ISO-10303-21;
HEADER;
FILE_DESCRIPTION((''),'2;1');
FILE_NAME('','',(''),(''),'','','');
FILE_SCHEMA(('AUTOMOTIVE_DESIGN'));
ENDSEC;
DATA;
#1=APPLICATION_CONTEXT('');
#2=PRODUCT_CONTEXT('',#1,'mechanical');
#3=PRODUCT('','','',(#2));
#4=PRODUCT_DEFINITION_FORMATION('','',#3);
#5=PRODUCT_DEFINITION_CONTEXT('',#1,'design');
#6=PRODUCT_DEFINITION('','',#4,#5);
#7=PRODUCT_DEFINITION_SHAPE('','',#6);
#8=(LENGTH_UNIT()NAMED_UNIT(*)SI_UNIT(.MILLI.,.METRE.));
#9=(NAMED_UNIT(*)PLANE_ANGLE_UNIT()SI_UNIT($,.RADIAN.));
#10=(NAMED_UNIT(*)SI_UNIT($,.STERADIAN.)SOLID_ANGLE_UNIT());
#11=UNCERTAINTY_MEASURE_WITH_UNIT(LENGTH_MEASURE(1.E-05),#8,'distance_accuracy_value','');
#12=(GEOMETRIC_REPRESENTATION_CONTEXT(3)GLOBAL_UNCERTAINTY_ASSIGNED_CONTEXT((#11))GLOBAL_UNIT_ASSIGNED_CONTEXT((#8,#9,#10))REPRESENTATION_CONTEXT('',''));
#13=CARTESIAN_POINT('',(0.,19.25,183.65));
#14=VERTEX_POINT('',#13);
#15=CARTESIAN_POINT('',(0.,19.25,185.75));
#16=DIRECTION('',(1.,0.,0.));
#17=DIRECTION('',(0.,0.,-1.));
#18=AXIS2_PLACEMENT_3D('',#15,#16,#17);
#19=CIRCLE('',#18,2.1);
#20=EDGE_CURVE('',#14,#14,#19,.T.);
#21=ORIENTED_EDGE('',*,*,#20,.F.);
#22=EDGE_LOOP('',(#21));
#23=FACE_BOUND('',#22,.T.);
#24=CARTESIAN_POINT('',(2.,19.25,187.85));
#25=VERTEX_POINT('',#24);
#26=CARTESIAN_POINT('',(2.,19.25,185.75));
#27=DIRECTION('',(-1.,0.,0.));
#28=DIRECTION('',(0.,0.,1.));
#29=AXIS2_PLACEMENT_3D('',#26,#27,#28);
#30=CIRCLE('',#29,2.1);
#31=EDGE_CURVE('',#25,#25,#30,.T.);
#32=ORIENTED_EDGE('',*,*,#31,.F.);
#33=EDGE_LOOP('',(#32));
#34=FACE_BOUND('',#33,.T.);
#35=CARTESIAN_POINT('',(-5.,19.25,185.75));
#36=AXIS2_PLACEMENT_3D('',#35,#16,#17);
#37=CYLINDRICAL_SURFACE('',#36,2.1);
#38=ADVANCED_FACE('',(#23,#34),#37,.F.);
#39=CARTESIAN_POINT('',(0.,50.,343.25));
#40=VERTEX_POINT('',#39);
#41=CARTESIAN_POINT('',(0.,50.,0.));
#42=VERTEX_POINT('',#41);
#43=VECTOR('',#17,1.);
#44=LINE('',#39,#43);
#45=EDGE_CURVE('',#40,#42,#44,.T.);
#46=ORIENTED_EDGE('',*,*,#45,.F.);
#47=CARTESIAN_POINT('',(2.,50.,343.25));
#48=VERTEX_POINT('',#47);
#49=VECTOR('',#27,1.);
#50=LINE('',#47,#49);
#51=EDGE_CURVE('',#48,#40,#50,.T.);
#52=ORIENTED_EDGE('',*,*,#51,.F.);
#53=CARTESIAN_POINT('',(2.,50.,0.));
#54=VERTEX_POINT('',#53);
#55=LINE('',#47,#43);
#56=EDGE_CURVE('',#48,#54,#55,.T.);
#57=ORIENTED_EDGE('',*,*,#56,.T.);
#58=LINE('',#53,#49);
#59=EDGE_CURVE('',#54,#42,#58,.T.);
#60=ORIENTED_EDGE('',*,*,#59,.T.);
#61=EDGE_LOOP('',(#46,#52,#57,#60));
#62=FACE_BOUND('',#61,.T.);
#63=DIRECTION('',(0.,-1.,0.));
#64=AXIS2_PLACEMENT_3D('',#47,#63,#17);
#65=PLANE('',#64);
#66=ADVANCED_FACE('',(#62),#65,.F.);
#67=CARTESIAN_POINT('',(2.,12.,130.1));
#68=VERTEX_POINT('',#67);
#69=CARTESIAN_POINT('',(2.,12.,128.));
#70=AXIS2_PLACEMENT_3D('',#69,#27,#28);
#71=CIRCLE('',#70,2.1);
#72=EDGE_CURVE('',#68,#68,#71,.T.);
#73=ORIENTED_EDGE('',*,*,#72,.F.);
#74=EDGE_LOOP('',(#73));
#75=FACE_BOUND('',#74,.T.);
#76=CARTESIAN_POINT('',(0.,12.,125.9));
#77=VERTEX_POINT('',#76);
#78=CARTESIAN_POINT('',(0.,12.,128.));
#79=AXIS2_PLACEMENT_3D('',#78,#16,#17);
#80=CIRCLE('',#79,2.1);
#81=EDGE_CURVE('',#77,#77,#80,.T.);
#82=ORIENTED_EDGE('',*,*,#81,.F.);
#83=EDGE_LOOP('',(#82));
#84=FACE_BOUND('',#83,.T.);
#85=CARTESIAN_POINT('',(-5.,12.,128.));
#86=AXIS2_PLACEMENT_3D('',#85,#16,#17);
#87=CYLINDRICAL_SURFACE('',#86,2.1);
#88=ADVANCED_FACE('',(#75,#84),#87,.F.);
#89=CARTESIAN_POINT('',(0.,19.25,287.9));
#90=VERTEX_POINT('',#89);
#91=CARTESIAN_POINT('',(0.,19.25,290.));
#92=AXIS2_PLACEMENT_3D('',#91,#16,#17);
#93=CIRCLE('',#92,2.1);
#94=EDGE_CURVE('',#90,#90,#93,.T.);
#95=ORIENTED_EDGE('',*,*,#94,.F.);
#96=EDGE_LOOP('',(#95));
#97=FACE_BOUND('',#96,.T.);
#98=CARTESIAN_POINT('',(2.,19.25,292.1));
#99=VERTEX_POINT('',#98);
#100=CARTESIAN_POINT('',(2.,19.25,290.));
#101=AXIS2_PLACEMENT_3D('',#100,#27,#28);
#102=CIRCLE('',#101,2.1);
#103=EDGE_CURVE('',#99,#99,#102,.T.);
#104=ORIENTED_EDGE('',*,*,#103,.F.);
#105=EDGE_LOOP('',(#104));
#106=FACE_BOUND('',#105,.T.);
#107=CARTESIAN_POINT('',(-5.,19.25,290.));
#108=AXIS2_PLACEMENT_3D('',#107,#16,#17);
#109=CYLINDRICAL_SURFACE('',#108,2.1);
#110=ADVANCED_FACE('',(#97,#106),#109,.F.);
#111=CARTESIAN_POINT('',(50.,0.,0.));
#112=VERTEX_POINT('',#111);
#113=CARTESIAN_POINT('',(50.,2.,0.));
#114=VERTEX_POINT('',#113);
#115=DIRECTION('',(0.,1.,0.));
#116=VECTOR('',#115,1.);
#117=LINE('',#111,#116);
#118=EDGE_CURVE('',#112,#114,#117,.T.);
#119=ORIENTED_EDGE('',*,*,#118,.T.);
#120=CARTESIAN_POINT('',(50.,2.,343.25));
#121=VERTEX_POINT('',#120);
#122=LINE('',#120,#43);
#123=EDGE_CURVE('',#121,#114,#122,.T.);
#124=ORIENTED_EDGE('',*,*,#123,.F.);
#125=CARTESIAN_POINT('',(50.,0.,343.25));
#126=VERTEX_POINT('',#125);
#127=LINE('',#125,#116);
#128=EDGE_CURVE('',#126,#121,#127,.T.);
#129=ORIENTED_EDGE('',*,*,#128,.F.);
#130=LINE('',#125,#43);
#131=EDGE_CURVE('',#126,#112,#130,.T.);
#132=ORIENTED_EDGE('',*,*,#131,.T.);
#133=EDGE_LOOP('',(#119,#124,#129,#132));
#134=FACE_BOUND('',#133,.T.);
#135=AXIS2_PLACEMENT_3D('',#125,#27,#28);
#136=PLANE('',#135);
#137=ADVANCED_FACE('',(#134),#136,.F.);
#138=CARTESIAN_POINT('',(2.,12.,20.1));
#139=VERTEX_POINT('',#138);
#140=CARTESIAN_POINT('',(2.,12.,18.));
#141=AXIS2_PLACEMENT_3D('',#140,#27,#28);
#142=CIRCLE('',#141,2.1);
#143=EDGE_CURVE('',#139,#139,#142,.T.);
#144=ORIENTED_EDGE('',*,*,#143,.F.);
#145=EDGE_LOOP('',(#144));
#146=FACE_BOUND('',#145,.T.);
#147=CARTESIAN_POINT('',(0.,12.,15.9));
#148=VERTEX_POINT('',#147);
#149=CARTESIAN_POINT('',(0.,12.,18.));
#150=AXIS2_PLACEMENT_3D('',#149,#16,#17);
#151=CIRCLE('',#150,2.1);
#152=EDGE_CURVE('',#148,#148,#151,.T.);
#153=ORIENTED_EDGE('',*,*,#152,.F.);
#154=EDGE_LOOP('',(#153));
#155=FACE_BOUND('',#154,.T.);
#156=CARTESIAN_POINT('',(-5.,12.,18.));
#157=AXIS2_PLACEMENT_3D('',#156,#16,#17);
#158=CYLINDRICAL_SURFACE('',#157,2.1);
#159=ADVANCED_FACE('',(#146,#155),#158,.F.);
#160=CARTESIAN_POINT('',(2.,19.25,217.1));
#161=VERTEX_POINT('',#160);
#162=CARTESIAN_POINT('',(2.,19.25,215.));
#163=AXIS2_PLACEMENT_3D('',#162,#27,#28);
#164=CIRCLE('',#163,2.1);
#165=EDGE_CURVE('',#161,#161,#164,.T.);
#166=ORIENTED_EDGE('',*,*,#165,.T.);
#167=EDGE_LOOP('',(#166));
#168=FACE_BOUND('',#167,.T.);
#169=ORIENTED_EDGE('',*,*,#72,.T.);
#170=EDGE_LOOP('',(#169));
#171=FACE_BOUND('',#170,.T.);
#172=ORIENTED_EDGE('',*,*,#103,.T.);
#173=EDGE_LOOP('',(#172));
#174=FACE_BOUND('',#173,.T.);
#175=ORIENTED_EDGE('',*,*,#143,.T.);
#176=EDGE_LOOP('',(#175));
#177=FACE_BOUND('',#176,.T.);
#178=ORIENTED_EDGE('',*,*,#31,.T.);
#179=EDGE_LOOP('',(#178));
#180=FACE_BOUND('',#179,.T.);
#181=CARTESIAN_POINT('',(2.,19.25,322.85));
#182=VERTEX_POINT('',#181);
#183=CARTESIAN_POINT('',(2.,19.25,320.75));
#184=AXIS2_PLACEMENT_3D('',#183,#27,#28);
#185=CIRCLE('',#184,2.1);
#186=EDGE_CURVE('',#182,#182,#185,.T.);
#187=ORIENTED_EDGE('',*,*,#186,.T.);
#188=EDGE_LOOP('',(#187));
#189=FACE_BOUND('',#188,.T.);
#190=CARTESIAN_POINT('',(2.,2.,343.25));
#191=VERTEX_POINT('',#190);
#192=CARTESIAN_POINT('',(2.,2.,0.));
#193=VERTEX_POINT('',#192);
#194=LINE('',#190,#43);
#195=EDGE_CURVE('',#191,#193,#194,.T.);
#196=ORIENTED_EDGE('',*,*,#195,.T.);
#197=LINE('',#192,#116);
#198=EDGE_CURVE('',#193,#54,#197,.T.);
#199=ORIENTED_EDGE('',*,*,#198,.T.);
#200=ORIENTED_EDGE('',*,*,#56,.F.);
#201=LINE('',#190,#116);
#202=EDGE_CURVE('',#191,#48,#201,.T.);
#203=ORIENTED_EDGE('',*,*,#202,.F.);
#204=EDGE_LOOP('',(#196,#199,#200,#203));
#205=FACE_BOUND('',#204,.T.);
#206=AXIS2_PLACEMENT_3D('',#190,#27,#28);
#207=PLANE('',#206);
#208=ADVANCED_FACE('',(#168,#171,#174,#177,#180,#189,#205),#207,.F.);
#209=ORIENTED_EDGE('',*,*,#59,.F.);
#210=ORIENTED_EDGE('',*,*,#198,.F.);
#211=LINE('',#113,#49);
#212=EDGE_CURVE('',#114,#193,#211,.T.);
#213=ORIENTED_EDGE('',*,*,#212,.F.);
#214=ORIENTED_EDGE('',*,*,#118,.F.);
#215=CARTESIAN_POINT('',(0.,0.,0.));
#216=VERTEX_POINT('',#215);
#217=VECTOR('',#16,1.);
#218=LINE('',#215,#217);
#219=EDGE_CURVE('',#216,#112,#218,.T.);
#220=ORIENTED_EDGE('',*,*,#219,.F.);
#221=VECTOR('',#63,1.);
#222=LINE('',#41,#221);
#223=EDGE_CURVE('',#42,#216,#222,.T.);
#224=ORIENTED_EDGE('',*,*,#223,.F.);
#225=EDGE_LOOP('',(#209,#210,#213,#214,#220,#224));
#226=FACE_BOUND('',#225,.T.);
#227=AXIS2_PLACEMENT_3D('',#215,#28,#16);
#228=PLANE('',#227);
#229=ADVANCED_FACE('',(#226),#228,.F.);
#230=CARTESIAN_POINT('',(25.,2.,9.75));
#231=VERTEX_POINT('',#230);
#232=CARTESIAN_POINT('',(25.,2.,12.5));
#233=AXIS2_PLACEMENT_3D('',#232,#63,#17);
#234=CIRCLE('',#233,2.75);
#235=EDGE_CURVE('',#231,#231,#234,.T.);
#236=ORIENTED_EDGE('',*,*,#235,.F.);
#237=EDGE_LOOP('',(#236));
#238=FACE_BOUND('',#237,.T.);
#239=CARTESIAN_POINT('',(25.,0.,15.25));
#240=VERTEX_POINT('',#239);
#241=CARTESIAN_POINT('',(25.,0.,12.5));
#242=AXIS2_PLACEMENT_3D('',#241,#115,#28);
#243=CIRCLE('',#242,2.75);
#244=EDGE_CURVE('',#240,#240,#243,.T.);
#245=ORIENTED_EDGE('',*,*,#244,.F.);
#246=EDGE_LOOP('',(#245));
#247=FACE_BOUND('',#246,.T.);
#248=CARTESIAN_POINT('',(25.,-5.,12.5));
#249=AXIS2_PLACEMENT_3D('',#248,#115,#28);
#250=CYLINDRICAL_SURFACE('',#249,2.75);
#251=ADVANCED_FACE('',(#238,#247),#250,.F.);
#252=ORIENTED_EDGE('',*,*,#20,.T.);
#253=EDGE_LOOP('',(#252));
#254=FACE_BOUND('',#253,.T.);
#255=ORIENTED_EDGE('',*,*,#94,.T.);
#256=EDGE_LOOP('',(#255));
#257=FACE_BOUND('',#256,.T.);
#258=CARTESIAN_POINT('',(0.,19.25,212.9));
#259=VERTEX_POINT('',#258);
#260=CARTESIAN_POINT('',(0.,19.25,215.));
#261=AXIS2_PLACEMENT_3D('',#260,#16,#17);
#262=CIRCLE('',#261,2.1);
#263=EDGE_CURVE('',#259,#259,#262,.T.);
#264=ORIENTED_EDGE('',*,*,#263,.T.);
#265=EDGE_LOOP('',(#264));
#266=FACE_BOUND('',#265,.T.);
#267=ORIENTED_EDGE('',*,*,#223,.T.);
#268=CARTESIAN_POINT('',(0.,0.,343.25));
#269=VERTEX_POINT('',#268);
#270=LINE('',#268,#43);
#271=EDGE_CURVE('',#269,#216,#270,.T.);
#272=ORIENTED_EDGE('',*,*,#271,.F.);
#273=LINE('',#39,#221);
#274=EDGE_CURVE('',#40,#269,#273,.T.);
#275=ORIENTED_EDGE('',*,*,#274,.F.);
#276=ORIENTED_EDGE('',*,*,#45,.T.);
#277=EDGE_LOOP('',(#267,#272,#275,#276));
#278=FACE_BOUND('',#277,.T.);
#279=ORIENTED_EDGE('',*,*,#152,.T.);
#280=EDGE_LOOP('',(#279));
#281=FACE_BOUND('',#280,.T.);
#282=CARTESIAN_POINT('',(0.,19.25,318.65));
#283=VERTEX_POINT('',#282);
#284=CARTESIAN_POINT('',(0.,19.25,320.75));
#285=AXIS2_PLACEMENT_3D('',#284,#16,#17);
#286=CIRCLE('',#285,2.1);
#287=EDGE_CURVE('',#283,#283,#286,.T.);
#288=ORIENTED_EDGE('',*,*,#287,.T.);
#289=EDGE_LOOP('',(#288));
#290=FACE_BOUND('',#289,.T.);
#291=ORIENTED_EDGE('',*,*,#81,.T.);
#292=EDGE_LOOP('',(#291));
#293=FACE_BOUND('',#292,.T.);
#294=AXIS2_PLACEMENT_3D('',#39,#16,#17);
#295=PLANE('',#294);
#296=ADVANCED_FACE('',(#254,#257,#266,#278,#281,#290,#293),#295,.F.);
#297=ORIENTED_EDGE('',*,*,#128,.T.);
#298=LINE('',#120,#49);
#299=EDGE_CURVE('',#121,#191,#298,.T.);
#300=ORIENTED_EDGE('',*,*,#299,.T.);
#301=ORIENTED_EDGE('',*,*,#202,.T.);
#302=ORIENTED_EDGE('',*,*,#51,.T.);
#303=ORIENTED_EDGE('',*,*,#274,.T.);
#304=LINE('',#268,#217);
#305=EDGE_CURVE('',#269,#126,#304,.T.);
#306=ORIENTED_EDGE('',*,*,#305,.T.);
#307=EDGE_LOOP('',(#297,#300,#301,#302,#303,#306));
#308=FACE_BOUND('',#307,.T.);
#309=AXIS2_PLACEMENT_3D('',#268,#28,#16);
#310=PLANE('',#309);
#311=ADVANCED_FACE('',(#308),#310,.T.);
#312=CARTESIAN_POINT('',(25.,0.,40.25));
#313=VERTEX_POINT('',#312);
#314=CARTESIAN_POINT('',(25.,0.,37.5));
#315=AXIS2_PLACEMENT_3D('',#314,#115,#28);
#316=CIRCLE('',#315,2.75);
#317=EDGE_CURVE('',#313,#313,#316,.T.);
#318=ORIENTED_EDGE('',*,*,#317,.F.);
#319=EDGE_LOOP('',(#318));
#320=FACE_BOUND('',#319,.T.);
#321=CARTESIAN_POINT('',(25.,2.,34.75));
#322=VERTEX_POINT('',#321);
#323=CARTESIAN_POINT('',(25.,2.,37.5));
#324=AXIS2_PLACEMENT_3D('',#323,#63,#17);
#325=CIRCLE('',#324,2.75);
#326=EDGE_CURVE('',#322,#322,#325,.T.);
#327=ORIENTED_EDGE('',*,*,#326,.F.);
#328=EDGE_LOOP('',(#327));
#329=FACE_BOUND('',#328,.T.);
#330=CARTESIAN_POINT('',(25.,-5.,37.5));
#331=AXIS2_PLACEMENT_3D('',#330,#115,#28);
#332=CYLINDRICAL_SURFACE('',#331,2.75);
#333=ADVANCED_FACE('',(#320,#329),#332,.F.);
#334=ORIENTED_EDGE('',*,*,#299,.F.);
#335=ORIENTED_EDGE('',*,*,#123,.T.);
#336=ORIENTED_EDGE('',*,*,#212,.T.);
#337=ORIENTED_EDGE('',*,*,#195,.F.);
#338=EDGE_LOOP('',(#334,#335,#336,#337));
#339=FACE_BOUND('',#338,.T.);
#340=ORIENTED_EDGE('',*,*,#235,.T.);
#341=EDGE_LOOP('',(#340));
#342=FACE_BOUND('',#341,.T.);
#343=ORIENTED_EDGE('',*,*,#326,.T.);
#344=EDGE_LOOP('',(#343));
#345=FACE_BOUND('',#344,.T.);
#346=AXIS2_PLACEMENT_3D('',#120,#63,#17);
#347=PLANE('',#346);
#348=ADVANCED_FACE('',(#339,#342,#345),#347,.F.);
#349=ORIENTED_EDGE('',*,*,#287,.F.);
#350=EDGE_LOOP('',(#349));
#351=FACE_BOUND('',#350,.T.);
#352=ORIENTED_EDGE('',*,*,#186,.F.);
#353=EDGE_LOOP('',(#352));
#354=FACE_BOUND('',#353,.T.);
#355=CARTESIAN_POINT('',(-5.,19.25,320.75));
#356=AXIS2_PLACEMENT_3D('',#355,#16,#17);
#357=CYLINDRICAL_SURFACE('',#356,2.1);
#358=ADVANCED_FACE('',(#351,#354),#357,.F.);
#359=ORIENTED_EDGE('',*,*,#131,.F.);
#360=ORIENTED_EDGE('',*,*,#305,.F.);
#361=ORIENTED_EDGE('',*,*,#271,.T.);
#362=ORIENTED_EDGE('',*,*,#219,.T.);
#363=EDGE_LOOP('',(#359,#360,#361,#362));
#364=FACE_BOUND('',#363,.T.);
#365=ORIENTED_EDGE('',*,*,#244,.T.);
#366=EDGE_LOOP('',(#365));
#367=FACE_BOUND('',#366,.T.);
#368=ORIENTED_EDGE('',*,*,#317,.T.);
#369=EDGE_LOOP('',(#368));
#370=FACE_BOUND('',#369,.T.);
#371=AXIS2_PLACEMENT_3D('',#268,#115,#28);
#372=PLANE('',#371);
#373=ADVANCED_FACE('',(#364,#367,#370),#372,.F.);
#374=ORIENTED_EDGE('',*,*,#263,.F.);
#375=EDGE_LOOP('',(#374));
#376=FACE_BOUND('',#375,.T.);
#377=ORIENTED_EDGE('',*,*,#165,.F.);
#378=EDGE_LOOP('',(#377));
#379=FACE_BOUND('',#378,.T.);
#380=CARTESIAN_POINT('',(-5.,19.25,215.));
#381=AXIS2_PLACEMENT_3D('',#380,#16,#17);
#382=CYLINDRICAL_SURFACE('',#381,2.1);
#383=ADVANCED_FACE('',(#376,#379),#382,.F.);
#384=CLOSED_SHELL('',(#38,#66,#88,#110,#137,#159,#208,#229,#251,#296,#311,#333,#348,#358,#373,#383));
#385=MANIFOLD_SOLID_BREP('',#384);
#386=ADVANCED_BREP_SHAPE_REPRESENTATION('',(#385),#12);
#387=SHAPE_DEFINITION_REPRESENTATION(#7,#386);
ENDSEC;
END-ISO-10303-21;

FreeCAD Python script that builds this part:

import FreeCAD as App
import Part
import Sketcher
from FreeCAD import Vector


def add_polygon(sketch, points):
    """Adds a closed chain of lines whose ends are joined by coincident constraints."""
    first, n = sketch.GeometryCount, len(points)
    for a, b in zip(points, points[1:] + points[:1]):
        sketch.addGeometry(Part.LineSegment(App.Vector(*a, 0), App.Vector(*b, 0)), False)
    for i in range(n):
        sketch.addConstraint(Sketcher.Constraint("Coincident", first + i, 2, first + (i + 1) % n, 1))

doc = App.newDocument("Part")
params = doc.addObject("Spreadsheet::Sheet", "Params")
for row, (alias, value) in enumerate([
    ("sketch1_width", "50 mm"),
    ("sketch1_width2", "48 mm"),
    ("pad1_length", "343.25 mm"),
    ("sketch2_diameter", "4.2 mm"),
    ("pocket1_length", "10 mm"),
    ("sketch3_diameter", "4.2 mm"),
    ("pocket2_length", "10 mm"),
    ("sketch4_diameter", "5.5 mm"),
    ("pocket3_length", "10 mm"),
], start=1):
    params.set(f"A{row}", alias)
    params.set(f"B{row}", "=" + value)
    params.setAlias(f"B{row}", alias)

body = doc.addObject("PartDesign::Body", "Body")

sketch1 = doc.addObject("Sketcher::SketchObject", "Sketch")
body.addObject(sketch1)
sketch1.AttachmentSupport = (doc.XY_Plane, [""])
sketch1.MapMode = "FlatFace"
add_polygon(sketch1, [(0, 0), (50, 0), (50, 2), (2, 2), (2, 50), (0, 50)])
sketch1.addConstraint([
    Sketcher.Constraint("Horizontal", 0),
    Sketcher.Constraint("Vertical", 1),
    Sketcher.Constraint("Horizontal", 2),
    Sketcher.Constraint("Vertical", 3),
    Sketcher.Constraint("Horizontal", 4),
    Sketcher.Constraint("Vertical", 5),
    Sketcher.Constraint("Coincident", 5, 2, -1, 1),
    Sketcher.Constraint("Equal", 4, 1),
    Sketcher.Constraint("Equal", 2, 3),
    Sketcher.Constraint("DistanceX", 0, 1, 0, 2, 50.0),
    Sketcher.Constraint("DistanceX", 2, 2, 2, 1, 48.0),
])
sketch1.setExpression("Constraints[15]", "Params.sketch1_width")
sketch1.setExpression("Constraints[16]", "Params.sketch1_width2")
pad1 = doc.addObject("PartDesign::Pad", "Pad")
body.addObject(pad1)
pad1.Profile = sketch1
pad1.setExpression("Length", "Params.pad1_length")

sketch2 = doc.addObject("Sketcher::SketchObject", "Sketch001")
body.addObject(sketch2)
sketch2.AttachmentSupport = (doc.YZ_Plane, [""])
sketch2.MapMode = "FlatFace"
sketch2.addGeometry([
    Part.Circle(Vector(19.2, 185.8, 0), Vector(0, 0, 1), 2.1),
    Part.Circle(Vector(19.2, 215, 0), Vector(0, 0, 1), 2.1),
    Part.Circle(Vector(19.2, 290, 0), Vector(0, 0, 1), 2.1),
    Part.Circle(Vector(19.2, 320.8, 0), Vector(0, 0, 1), 2.1),
], False)
sketch2.addConstraint([
    Sketcher.Constraint("Equal", 0, 1),
    Sketcher.Constraint("Equal", 1, 2),
    Sketcher.Constraint("Equal", 2, 3),
    Sketcher.Constraint("Vertical", 0, 3, 1, 3),
    Sketcher.Constraint("Vertical", 1, 3, 2, 3),
    Sketcher.Constraint("Vertical", 2, 3, 3, 3),
    Sketcher.Constraint("Diameter", 0, 4.2),
    Sketcher.Constraint("DistanceY", -1, 1, 1, 3, 215.0),
    Sketcher.Constraint("DistanceY", -1, 1, 2, 3, 290.0),
    Sketcher.Constraint("DistanceY", 0, 3, 3, 3, 135.0),
    Sketcher.Constraint("DistanceX", -1, 1, 0, 3, 19.25),
    Sketcher.Constraint("DistanceY", -1, 1, 0, 3, 185.75),
])
sketch2.setExpression("Constraints[6]", "Params.sketch2_diameter")
pocket1 = doc.addObject("PartDesign::Pocket", "Pocket")
body.addObject(pocket1)
pocket1.Profile = sketch2
pocket1.setExpression("Length", "Params.pocket1_length")
pocket1.Midplane = True

sketch3 = doc.addObject("Sketcher::SketchObject", "Sketch002")
body.addObject(sketch3)
sketch3.AttachmentSupport = (doc.YZ_Plane, [""])
sketch3.MapMode = "FlatFace"
sketch3.addGeometry([
    Part.Circle(Vector(12, 18, 0), Vector(0, 0, 1), 2.1),
    Part.Circle(Vector(12, 128, 0), Vector(0, 0, 1), 2.1),
], False)
sketch3.addConstraint([
    Sketcher.Constraint("Equal", 0, 1),
    Sketcher.Constraint("Vertical", 0, 3, 1, 3),
    Sketcher.Constraint("Diameter", 0, 4.2),
    Sketcher.Constraint("DistanceX", -1, 1, 0, 3, 12.0),
    Sketcher.Constraint("DistanceY", -1, 1, 0, 3, 18.0),
    Sketcher.Constraint("DistanceY", -1, 1, 1, 3, 128.0),
])
sketch3.setExpression("Constraints[2]", "Params.sketch3_diameter")
pocket2 = doc.addObject("PartDesign::Pocket", "Pocket001")
body.addObject(pocket2)
pocket2.Profile = sketch3
pocket2.setExpression("Length", "Params.pocket2_length")
pocket2.Midplane = True

sketch4 = doc.addObject("Sketcher::SketchObject", "Sketch003")
body.addObject(sketch4)
sketch4.AttachmentSupport = (doc.XZ_Plane, [""])
sketch4.MapMode = "FlatFace"
sketch4.addGeometry([
    Part.Circle(Vector(25, 12.5, 0), Vector(0, 0, 1), 2.8),
    Part.Circle(Vector(25, 37.5, 0), Vector(0, 0, 1), 2.8),
], False)
sketch4.addConstraint([
    Sketcher.Constraint("Equal", 0, 1),
    Sketcher.Constraint("Vertical", 0, 3, 1, 3),
    Sketcher.Constraint("Diameter", 0, 5.5),
    Sketcher.Constraint("DistanceX", -1, 1, 0, 3, 25.0),
    Sketcher.Constraint("DistanceY", 0, 3, 1, 3, 25.0),
    Sketcher.Constraint("DistanceY", -1, 1, 0, 3, 12.5),
])
sketch4.setExpression("Constraints[2]", "Params.sketch4_diameter")
pocket3 = doc.addObject("PartDesign::Pocket", "Pocket002")
body.addObject(pocket3)
pocket3.Profile = sketch4
pocket3.setExpression("Length", "Params.pocket3_length")
pocket3.Midplane = True

doc.recompute()
